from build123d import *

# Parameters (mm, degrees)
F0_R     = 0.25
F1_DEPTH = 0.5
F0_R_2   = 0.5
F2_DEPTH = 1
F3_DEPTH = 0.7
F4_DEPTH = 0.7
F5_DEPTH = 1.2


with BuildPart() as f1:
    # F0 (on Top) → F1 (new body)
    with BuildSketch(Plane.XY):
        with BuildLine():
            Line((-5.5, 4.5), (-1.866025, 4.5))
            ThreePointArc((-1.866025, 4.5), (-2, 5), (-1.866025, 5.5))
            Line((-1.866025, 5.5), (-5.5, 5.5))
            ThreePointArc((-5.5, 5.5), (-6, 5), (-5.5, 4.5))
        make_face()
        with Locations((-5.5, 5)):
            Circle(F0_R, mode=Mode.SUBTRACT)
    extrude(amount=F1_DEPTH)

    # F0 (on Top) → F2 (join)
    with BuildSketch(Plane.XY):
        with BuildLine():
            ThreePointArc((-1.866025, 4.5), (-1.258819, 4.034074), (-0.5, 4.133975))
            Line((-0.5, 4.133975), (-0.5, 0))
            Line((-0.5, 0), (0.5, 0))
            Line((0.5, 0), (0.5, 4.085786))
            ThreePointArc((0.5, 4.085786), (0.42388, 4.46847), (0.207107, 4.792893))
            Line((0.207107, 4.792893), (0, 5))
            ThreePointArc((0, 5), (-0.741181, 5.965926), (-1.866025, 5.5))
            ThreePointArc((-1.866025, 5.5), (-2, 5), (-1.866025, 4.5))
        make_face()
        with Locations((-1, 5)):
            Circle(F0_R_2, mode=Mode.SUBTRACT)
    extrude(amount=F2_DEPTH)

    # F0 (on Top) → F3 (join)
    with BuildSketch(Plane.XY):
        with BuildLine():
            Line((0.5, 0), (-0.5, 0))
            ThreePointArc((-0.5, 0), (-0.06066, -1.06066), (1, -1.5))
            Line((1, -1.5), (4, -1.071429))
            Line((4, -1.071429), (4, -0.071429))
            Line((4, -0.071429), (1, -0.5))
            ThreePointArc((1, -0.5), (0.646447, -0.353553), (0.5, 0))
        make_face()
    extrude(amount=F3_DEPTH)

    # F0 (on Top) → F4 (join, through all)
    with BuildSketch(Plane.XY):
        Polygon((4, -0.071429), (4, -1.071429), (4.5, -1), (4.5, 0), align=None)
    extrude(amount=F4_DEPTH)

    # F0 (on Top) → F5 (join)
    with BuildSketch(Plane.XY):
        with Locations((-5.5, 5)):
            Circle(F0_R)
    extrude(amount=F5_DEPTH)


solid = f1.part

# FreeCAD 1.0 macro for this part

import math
import FreeCAD as App
import Part
import Sketcher
Q = App.Units.Quantity

doc = App.newDocument("Part")
body = doc.addObject("PartDesign::Body", "Body")

sketch1 = doc.addObject("Sketcher::SketchObject", "Sketch")
body.addObject(sketch1)
sketch1.AttachmentSupport = (doc.XY_Plane, [""])
sketch1.MapMode = "FlatFace"
sketch1.addGeometry(Part.LineSegment(App.Vector(-5.5, 4.5, 0), App.Vector(-1.87, 4.5, 0)), False)
sketch1.addGeometry(Part.ArcOfCircle(Part.Circle(App.Vector(-1, 5, 0), App.Vector(0, 0, 1), 1), math.radians(150), math.radians(210)), False)
sketch1.addGeometry(Part.LineSegment(App.Vector(-1.87, 5.5, 0), App.Vector(-5.5, 5.5, 0)), False)
sketch1.addGeometry(Part.ArcOfCircle(Part.Circle(App.Vector(-5.5, 5, 0), App.Vector(0, 0, 1), 0.5), math.radians(90), math.radians(270)), False)
sketch1.addGeometry(Part.Circle(App.Vector(-5.5, 5, 0), App.Vector(0, 0, 1), 0.25), False)
sketch1.addConstraint(Sketcher.Constraint("Coincident", 0, 2, 1, 2))
sketch1.addConstraint(Sketcher.Constraint("Coincident", 1, 1, 2, 1))
sketch1.addConstraint(Sketcher.Constraint("Tangent", 2, 2, 3, 1))
sketch1.addConstraint(Sketcher.Constraint("Tangent", 3, 2, 0, 1))
sketch1.addConstraint(Sketcher.Constraint("Horizontal", 0))
sketch1.addConstraint(Sketcher.Constraint("Horizontal", 2))
sketch1.addConstraint(Sketcher.Constraint("Coincident", 4, 3, 3, 3))
sketch1.addConstraint(Sketcher.Constraint("Horizontal", 1, 3, 3, 3))
sketch1.addConstraint(Sketcher.Constraint("Diameter", 4, 0.5))
sketch1.addConstraint(Sketcher.Constraint("Radius", 3, 0.5))
sketch1.addConstraint(Sketcher.Constraint("DistanceY", -1, 1, 1, 3, 5.0))
sketch1.addConstraint(Sketcher.Constraint("DistanceX", 3, 3, -1, 1, 5.5))
sketch1.addConstraint(Sketcher.Constraint("Radius", 1, 0.999997))
sketch1.addConstraint(Sketcher.Constraint("DistanceX", 0, 1, 0, 2, 3.633975))
pad1 = doc.addObject("PartDesign::Pad", "Pad")
body.addObject(pad1)
pad1.Profile = sketch1
pad1.Length = 0.5

sketch2 = doc.addObject("Sketcher::SketchObject", "Sketch001")
body.addObject(sketch2)
sketch2.AttachmentSupport = (doc.XY_Plane, [""])
sketch2.MapMode = "FlatFace"
sketch2.addGeometry(Part.ArcOfCircle(Part.Circle(App.Vector(-1, 5, 0), App.Vector(0, 0, 1), 1), math.radians(-150), math.radians(-60)), False)
sketch2.addGeometry(Part.LineSegment(App.Vector(-0.5, 4.13, 0), App.Vector(-0.5, 0, 0)), False)
sketch2.addGeometry(Part.LineSegment(App.Vector(-0.5, 0, 0), App.Vector(0.5, 0, 0)), False)
sketch2.addGeometry(Part.LineSegment(App.Vector(0.5, 0, 0), App.Vector(0.5, 4.09, 0)), False)
sketch2.addGeometry(Part.ArcOfCircle(Part.Circle(App.Vector(-0.5, 4.09, 0), App.Vector(0, 0, 1), 1), math.radians(0), math.radians(45)), False)
sketch2.addGeometry(Part.LineSegment(App.Vector(0.21, 4.79, 0), App.Vector(0, 5, 0)), False)
sketch2.addGeometry(Part.ArcOfCircle(Part.Circle(App.Vector(-1, 5, 0), App.Vector(0, 0, 1), 1), math.radians(0), math.radians(150)), False)
sketch2.addGeometry(Part.ArcOfCircle(Part.Circle(App.Vector(-1, 5, 0), App.Vector(0, 0, 1), 1), math.radians(150), math.radians(210)), False)
sketch2.addGeometry(Part.Circle(App.Vector(-1, 5, 0), App.Vector(0, 0, 1), 0.5), False)
sketch2.addConstraint(Sketcher.Constraint("Coincident", 0, 2, 1, 1))
sketch2.addConstraint(Sketcher.Constraint("Coincident", 1, 2, 2, 1))
sketch2.addConstraint(Sketcher.Constraint("Coincident", 2, 2, 3, 1))
sketch2.addConstraint(Sketcher.Constraint("Coincident", 3, 2, 4, 1))
sketch2.addConstraint(Sketcher.Constraint("Coincident", 4, 2, 5, 1))
sketch2.addConstraint(Sketcher.Constraint("Coincident", 5, 2, 6, 1))
sketch2.addConstraint(Sketcher.Constraint("Tangent", 6, 2, 7, 1))
sketch2.addConstraint(Sketcher.Constraint("Coincident", 7, 2, 0, 1))
sketch2.addConstraint(Sketcher.Constraint("Vertical", 1))
sketch2.addConstraint(Sketcher.Constraint("Horizontal", 2))
sketch2.addConstraint(Sketcher.Constraint("Vertical", 3))
sketch2.addConstraint(Sketcher.Constraint("Coincident", 6, 3, 0, 3))
sketch2.addConstraint(Sketcher.Constraint("Coincident", 8, 3, 0, 3))
sketch2.addConstraint(Sketcher.Constraint("Equal", 0, 6))
sketch2.addConstraint(Sketcher.Constraint("Symmetric", 1, 2, 2, 2, -1, 1))
sketch2.addConstraint(Sketcher.Constraint("PointOnObject", 5, 2, -2))
sketch2.addConstraint(Sketcher.Constraint("Horizontal", 8, 3, 5, 2))
sketch2.addConstraint(Sketcher.Constraint("Vertical", 6, 2, 7, 2))
sketch2.addConstraint(Sketcher.Constraint("Diameter", 8, 1.0))
sketch2.addConstraint(Sketcher.Constraint("Radius", 0, 0.999998))
sketch2.addConstraint(Sketcher.Constraint("DistanceX", 2, 1, 2, 2, 1.0))
sketch2.addConstraint(Sketcher.Constraint("Angle", 5, Q("135 deg")))
sketch2.addConstraint(Sketcher.Constraint("DistanceY", -1, 1, 0, 3, 4.999998))
sketch2.addConstraint(Sketcher.Constraint("DistanceY", 7, 2, 6, 2, 1.0))
sketch2.addConstraint(Sketcher.Constraint("Radius", 4, 0.999994))
sketch2.addConstraint(Sketcher.Constraint("DistanceX", 4, 3, 4, 2, 0.707101))
sketch2.addConstraint(Sketcher.Constraint("DistanceY", 3, 1, 3, 2, 4.085786))
pad2 = doc.addObject("PartDesign::Pad", "Pad001")
body.addObject(pad2)
pad2.Profile = sketch2
pad2.Length = 1

sketch3 = doc.addObject("Sketcher::SketchObject", "Sketch002")
body.addObject(sketch3)
sketch3.AttachmentSupport = (doc.XY_Plane, [""])
sketch3.MapMode = "FlatFace"
sketch3.addGeometry(Part.LineSegment(App.Vector(0.5, 0, 0), App.Vector(-0.5, 0, 0)), False)
sketch3.addGeometry(Part.ArcOfCircle(Part.Circle(App.Vector(1, 0, 0), App.Vector(0, 0, 1), 1.5), math.radians(-180), math.radians(-90)), False)
sketch3.addGeometry(Part.LineSegment(App.Vector(1, -1.5, 0), App.Vector(4, -1.1, 0)), False)
sketch3.addGeometry(Part.LineSegment(App.Vector(4, -1.1, 0), App.Vector(4, -0.1, 0)), False)
sketch3.addGeometry(Part.LineSegment(App.Vector(4, -0.1, 0), App.Vector(1, -0.5, 0)), False)
sketch3.addGeometry(Part.ArcOfCircle(Part.Circle(App.Vector(1, 0, 0), App.Vector(0, 0, 1), 0.5), math.radians(-180), math.radians(-90)), False)
sketch3.addConstraint(Sketcher.Constraint("Coincident", 0, 2, 1, 1))
sketch3.addConstraint(Sketcher.Constraint("Coincident", 1, 2, 2, 1))
sketch3.addConstraint(Sketcher.Constraint("Coincident", 2, 2, 3, 1))
sketch3.addConstraint(Sketcher.Constraint("Coincident", 3, 2, 4, 1))
sketch3.addConstraint(Sketcher.Constraint("Coincident", 4, 2, 5, 2))
sketch3.addConstraint(Sketcher.Constraint("Coincident", 5, 1, 0, 1))
sketch3.addConstraint(Sketcher.Constraint("Horizontal", 0))
sketch3.addConstraint(Sketcher.Constraint("Vertical", 3))
sketch3.addConstraint(Sketcher.Constraint("Coincident", 5, 3, 1, 3))
sketch3.addConstraint(Sketcher.Constraint("Symmetric", 0, 2, 5, 1, -1, 1))
sketch3.addConstraint(Sketcher.Constraint("PointOnObject", 1, 3, -1))
sketch3.addConstraint(Sketcher.Constraint("Parallel", 2, 4))
sketch3.addConstraint(Sketcher.Constraint("Vertical", 5, 3, 1, 2))
sketch3.addConstraint(Sketcher.Constraint("Vertical", 1, 2, 4, 2))
sketch3.addConstraint(Sketcher.Constraint("Radius", 1, 1.500001))
sketch3.addConstraint(Sketcher.Constraint("Radius", 5, 0.500001))
sketch3.addConstraint(Sketcher.Constraint("DistanceX", -1, 1, 2, 2, 4.0))
sketch3.addConstraint(Sketcher.Constraint("DistanceY", 2, 2, -1, 1, 1.071429))
pad3 = doc.addObject("PartDesign::Pad", "Pad002")
body.addObject(pad3)
pad3.Profile = sketch3
pad3.Length = 0.7

sketch4 = doc.addObject("Sketcher::SketchObject", "Sketch003")
body.addObject(sketch4)
sketch4.AttachmentSupport = (doc.XY_Plane, [""])
sketch4.MapMode = "FlatFace"
sketch4.addGeometry(Part.LineSegment(App.Vector(4, -0.1, 0), App.Vector(4, -1.1, 0)), False)
sketch4.addGeometry(Part.LineSegment(App.Vector(4, -1.1, 0), App.Vector(4.5, -1, 0)), False)
sketch4.addGeometry(Part.LineSegment(App.Vector(4.5, -1, 0), App.Vector(4.5, 0, 0)), False)
sketch4.addGeometry(Part.LineSegment(App.Vector(4.5, 0, 0), App.Vector(4, -0.1, 0)), False)
sketch4.addConstraint(Sketcher.Constraint("Coincident", 0, 2, 1, 1))
sketch4.addConstraint(Sketcher.Constraint("Coincident", 1, 2, 2, 1))
sketch4.addConstraint(Sketcher.Constraint("Coincident", 2, 2, 3, 1))
sketch4.addConstraint(Sketcher.Constraint("Coincident", 3, 2, 0, 1))
sketch4.addConstraint(Sketcher.Constraint("Vertical", 0))
sketch4.addConstraint(Sketcher.Constraint("Vertical", 2))
sketch4.addConstraint(Sketcher.Constraint("PointOnObject", 2, 2, -1))
sketch4.addConstraint(Sketcher.Constraint("Parallel", 1, 3))
sketch4.addConstraint(Sketcher.Constraint("DistanceY", 0, 2, 0, 1, 1.0))
sketch4.addConstraint(Sketcher.Constraint("DistanceX", -1, 1, 0, 2, 4.0))
sketch4.addConstraint(Sketcher.Constraint("DistanceX", -1, 1, 1, 2, 4.5))
sketch4.addConstraint(Sketcher.Constraint("DistanceY", 0, 2, -1, 1, 1.071429))
pad4 = doc.addObject("PartDesign::Pad", "Pad003")
body.addObject(pad4)
pad4.Profile = sketch4
pad4.Length = 0.7

sketch5 = doc.addObject("Sketcher::SketchObject", "Sketch004")
body.addObject(sketch5)
sketch5.AttachmentSupport = (doc.XY_Plane, [""])
sketch5.MapMode = "FlatFace"
sketch5.addGeometry(Part.Circle(App.Vector(-5.5, 5, 0), App.Vector(0, 0, 1), 0.25), False)
sketch5.addConstraint(Sketcher.Constraint("Diameter", 0, 0.5))
sketch5.addConstraint(Sketcher.Constraint("DistanceY", -1, 1, 0, 3, 5.0))
sketch5.addConstraint(Sketcher.Constraint("DistanceX", 0, 3, -1, 1, 5.5))
pad5 = doc.addObject("PartDesign::Pad", "Pad004")
body.addObject(pad5)
pad5.Profile = sketch5
pad5.Length = 1.2

doc.recompute()
